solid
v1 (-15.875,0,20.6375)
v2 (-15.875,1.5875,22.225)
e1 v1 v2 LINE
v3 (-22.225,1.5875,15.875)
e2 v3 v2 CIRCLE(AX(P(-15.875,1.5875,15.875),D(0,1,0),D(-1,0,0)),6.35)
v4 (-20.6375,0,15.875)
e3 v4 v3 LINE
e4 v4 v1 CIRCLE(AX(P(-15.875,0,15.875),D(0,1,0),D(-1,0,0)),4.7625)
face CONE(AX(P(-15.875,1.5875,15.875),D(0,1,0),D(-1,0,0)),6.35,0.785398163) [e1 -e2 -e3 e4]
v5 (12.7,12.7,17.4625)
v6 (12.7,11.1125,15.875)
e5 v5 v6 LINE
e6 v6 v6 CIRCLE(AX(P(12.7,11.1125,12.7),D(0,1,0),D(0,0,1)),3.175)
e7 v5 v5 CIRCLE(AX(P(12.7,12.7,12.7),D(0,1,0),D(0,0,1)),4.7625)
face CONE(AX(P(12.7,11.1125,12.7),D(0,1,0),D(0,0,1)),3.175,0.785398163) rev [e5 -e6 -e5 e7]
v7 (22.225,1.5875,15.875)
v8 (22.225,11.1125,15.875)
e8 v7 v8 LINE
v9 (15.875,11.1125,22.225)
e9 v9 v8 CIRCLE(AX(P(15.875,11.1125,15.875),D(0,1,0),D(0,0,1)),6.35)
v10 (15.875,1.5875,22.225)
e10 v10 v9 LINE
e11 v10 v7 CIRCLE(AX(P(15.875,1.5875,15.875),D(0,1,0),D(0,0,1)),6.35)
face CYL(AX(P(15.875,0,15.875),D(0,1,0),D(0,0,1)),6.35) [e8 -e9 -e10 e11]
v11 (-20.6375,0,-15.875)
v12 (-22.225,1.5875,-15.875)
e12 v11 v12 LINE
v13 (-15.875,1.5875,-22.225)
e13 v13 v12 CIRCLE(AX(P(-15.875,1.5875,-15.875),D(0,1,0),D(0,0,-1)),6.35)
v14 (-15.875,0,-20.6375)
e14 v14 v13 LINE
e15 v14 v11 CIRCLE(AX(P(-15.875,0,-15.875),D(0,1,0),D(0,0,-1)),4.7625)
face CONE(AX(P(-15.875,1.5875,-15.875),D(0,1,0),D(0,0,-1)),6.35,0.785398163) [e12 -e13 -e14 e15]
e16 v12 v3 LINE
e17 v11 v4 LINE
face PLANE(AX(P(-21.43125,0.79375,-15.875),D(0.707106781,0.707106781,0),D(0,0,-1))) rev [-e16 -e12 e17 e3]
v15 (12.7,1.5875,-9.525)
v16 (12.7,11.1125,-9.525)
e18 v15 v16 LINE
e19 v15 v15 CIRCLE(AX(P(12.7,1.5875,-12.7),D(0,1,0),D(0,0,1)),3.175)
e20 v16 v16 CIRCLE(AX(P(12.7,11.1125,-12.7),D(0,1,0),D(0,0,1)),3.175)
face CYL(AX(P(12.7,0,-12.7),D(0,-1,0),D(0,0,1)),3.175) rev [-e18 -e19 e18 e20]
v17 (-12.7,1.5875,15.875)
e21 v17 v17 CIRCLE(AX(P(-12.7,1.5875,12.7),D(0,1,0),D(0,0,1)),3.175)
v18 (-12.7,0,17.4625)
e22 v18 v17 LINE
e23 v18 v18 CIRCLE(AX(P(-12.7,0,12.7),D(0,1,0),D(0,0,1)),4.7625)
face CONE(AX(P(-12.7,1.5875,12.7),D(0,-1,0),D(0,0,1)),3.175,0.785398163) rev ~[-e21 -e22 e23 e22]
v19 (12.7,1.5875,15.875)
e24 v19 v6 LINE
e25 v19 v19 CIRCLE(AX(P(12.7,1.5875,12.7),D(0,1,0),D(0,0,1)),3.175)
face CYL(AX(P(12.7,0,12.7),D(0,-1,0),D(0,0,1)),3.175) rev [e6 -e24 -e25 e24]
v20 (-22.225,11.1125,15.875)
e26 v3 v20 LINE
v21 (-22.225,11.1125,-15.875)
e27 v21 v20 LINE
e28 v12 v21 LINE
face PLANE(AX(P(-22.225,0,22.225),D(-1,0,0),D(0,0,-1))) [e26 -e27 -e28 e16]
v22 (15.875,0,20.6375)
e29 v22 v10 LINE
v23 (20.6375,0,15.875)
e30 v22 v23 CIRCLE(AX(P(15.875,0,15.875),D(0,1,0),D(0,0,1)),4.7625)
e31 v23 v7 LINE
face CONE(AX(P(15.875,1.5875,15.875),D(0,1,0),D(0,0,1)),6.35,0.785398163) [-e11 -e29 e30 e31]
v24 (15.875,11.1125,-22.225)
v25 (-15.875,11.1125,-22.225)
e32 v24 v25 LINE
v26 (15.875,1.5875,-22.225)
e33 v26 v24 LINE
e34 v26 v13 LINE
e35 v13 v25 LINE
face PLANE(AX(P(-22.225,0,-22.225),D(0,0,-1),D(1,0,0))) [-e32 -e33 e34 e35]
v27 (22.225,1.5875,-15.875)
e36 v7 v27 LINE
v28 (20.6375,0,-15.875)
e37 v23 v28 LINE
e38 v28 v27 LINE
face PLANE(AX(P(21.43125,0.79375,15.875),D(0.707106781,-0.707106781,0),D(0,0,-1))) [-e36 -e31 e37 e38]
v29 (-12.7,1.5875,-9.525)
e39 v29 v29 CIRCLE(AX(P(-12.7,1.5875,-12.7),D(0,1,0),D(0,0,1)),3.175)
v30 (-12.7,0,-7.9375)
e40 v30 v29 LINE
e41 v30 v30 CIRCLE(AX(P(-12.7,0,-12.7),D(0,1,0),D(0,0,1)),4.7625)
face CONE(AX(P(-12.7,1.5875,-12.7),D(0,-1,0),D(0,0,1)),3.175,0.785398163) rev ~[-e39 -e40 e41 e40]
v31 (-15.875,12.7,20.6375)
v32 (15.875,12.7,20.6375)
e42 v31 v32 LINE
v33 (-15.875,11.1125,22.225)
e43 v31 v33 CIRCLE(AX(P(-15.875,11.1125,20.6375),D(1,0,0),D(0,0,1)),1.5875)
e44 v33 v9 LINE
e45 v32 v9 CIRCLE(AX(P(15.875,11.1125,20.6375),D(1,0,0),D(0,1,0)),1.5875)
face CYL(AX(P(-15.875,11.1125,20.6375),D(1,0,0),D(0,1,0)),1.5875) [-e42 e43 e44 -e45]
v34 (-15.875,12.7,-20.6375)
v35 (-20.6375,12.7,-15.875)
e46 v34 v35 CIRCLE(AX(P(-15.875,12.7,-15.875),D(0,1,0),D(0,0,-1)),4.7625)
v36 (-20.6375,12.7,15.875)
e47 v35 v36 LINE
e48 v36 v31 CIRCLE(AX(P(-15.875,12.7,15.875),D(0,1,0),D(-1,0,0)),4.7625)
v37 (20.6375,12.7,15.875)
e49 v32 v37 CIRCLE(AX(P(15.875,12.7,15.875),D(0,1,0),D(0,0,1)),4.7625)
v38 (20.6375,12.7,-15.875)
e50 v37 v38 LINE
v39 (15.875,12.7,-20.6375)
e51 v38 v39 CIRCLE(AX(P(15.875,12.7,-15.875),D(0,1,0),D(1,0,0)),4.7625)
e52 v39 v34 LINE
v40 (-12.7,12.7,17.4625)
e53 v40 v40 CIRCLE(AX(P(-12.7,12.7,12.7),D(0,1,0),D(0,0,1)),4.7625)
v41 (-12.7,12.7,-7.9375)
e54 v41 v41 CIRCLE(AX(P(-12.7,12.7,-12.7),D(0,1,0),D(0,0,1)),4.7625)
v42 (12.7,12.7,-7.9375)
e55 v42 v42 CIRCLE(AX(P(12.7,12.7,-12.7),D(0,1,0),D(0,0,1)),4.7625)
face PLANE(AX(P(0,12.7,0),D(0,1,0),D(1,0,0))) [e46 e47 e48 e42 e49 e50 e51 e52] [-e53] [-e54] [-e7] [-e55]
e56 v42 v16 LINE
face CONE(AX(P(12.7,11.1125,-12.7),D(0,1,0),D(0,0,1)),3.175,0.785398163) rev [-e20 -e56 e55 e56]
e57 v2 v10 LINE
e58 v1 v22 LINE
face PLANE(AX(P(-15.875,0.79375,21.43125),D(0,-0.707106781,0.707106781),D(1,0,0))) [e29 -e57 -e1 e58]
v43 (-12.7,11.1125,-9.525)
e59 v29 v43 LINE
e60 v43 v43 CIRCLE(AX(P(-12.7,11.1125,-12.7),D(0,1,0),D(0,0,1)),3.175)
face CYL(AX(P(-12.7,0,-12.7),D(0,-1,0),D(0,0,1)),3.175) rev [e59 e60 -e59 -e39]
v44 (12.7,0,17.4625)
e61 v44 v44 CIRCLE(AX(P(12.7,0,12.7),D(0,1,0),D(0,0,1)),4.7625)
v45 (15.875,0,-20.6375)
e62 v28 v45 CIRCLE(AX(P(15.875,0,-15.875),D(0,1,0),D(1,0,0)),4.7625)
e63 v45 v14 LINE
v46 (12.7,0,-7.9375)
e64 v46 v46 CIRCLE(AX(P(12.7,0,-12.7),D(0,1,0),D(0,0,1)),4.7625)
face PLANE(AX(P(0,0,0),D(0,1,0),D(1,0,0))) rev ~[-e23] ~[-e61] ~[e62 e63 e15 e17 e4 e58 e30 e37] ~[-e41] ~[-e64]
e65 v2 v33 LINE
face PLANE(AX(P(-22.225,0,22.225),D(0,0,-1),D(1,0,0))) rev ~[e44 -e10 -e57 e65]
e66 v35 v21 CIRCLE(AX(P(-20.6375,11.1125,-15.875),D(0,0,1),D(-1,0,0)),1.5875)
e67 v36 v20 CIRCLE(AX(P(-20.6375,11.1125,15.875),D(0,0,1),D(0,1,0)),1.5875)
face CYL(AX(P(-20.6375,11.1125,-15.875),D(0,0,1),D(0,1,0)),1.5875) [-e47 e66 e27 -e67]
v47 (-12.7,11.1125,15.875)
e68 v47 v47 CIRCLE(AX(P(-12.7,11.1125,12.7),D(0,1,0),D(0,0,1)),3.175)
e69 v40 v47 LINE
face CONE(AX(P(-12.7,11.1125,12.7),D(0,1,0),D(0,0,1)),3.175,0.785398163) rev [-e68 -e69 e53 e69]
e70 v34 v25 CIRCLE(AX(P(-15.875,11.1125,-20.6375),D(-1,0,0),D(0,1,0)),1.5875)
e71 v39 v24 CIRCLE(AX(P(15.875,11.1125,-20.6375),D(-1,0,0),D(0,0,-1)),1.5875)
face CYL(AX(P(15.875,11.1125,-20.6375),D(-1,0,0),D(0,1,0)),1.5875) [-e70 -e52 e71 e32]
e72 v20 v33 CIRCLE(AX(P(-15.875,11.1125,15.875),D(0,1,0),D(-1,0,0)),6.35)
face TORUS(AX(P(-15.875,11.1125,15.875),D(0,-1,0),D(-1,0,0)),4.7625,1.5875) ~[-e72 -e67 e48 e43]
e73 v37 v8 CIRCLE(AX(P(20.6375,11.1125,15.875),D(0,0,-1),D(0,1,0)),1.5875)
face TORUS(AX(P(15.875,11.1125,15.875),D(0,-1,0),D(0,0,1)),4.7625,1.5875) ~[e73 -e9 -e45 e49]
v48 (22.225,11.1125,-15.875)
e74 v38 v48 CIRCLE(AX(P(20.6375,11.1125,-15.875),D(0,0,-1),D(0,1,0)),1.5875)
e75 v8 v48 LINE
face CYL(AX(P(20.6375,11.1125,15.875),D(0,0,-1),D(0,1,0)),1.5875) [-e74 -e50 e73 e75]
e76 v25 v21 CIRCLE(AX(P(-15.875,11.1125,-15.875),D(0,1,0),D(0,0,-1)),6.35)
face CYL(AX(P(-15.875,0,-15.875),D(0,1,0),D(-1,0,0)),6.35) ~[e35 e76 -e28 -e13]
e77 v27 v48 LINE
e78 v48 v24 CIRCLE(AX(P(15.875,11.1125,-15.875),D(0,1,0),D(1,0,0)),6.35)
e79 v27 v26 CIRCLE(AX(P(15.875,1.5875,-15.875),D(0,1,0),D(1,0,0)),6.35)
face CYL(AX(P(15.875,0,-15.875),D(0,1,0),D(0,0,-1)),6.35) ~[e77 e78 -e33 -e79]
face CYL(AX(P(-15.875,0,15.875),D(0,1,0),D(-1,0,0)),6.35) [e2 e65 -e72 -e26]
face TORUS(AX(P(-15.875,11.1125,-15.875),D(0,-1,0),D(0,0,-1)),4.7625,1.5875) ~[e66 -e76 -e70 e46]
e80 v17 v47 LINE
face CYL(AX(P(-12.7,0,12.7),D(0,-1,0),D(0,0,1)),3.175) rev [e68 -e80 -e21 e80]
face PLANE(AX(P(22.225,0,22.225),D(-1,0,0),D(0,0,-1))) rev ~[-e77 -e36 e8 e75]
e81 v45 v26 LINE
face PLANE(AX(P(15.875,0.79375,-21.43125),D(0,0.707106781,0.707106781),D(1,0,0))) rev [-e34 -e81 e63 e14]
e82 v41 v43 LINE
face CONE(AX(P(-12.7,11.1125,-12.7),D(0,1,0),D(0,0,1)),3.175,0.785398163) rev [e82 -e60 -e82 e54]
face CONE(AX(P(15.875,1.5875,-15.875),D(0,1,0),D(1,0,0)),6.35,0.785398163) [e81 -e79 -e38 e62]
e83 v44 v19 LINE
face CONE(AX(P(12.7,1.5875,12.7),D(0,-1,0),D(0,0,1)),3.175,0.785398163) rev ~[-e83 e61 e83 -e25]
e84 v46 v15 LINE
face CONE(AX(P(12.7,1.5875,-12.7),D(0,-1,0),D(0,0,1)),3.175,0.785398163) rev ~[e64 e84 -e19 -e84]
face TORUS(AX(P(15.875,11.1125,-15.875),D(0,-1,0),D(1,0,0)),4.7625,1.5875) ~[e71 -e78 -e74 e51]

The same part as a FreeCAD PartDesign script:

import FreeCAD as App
import Part
import Sketcher
from FreeCAD import Vector
Q = App.Units.Quantity


def edges_at(feature, points):
    """Names of the edges that pass closest to the given points."""
    edges = feature.Shape.Edges
    near = lambda p: min(range(len(edges)), key=lambda i: edges[i].distToShape(Part.Vertex(*p))[0])
    return sorted({f"Edge{near(p) + 1}" for p in points})

doc = App.newDocument("Part")
body = doc.addObject("PartDesign::Body", "Body")

sketch1 = doc.addObject("Sketcher::SketchObject", "Sketch")
body.addObject(sketch1)
sketch1.AttachmentSupport = (doc.XZ_Plane, [""])
sketch1.MapMode = "FlatFace"
sketch1.addGeometry(Part.LineSegment(Vector(-22.225, -22.225, 0), Vector(-22.225, 22.225, 0)), False)
sketch1.addGeometry(Part.LineSegment(Vector(-22.225, 22.225, 0), Vector(22.225, 22.225, 0)), False)
sketch1.addGeometry(Part.LineSegment(Vector(22.225, 22.225, 0), Vector(22.225, -22.225, 0)), False)
sketch1.addGeometry(Part.LineSegment(Vector(22.225, -22.225, 0), Vector(-22.225, -22.225, 0)), False)
sketch1.addGeometry(Part.Circle(Vector(-12.7, 12.7, 0), Vector(0, 0, 1), 3.175), False)
sketch1.addGeometry(Part.Circle(Vector(12.7, 12.7, 0), Vector(0, 0, 1), 3.175), False)
sketch1.addGeometry(Part.Circle(Vector(-12.7, -12.7, 0), Vector(0, 0, 1), 3.175), False)
sketch1.addGeometry(Part.Circle(Vector(12.7, -12.7, 0), Vector(0, 0, 1), 3.175), False)
sketch1.addConstraint(Sketcher.Constraint("Coincident", 0, 2, 1, 1))
sketch1.addConstraint(Sketcher.Constraint("Coincident", 1, 2, 2, 1))
sketch1.addConstraint(Sketcher.Constraint("Coincident", 2, 2, 3, 1))
sketch1.addConstraint(Sketcher.Constraint("Coincident", 3, 2, 0, 1))
sketch1.addConstraint(Sketcher.Constraint("Vertical", 0))
sketch1.addConstraint(Sketcher.Constraint("Horizontal", 1))
sketch1.addConstraint(Sketcher.Constraint("Vertical", 2))
sketch1.addConstraint(Sketcher.Constraint("Horizontal", 3))
sketch1.addConstraint(Sketcher.Constraint("Equal", 4, 5))
sketch1.addConstraint(Sketcher.Constraint("Equal", 5, 6))
sketch1.addConstraint(Sketcher.Constraint("Equal", 6, 7))
sketch1.addConstraint(Sketcher.Constraint("Symmetric", 5, 3, 6, 3, -1, 1))
sketch1.addConstraint(Sketcher.Constraint("Symmetric", 4, 3, 7, 3, -1, 1))
sketch1.addConstraint(Sketcher.Constraint("Symmetric", 0, 2, 2, 2, -1, 1))
sketch1.addConstraint(Sketcher.Constraint("Symmetric", 4, 3, 5, 3, -2))
sketch1.addConstraint(Sketcher.Constraint("Equal", 3, 0))
sketch1.addConstraint(Sketcher.Constraint("Diameter", 4, Q("0.25 in")))
sketch1.addConstraint(Sketcher.Constraint("DistanceX", 4, 3, 5, 3, Q("1 in")))
sketch1.addConstraint(Sketcher.Constraint("DistanceY", 6, 3, 4, 3, Q("1 in")))
sketch1.addConstraint(Sketcher.Constraint("DistanceX", 1, 1, 1, 2, Q("1.75 in")))
pad1 = doc.addObject("PartDesign::Pad", "Pad")
body.addObject(pad1)
pad1.Profile = sketch1
pad1.Length = Q("0.5 in")
pad1.Reversed = True
doc.recompute()

fillet = doc.addObject("PartDesign::Fillet", "Fillet")
body.addObject(fillet)
fillet.Base = (pad1, edges_at(pad1, [
    (22.225, 6.35, 22.225),
    (-22.225, 6.35, 22.225),
    (-22.225, 6.35, -22.225),
    (22.225, 6.35, -22.225),
]))
fillet.Radius = Q("0.25 in")
doc.recompute()

fillet2 = doc.addObject("PartDesign::Fillet", "Fillet001")
body.addObject(fillet2)
fillet2.Base = (fillet, edges_at(fillet, [
    (22.225, 12.7, 0),
    (0, 12.7, 22.225),
    (0, 12.7, -22.225),
    (-22.225, 12.7, 0),
    (-20.365, 12.7, 20.365),
    (20.365, 12.7, -20.365),
    (-20.365, 12.7, -20.365),
    (20.365, 12.7, 20.365),
]))
fillet2.Radius = Q("0.0625 in")
doc.recompute()

chamfer = doc.addObject("PartDesign::Chamfer", "Chamfer")
body.addObject(chamfer)
chamfer.Base = (fillet2, edges_at(fillet2, [
    (-12.7, 0, 9.525),
    (-12.7, 12.7, 9.525),
    (12.7, 0, 9.525),
    (12.7, 12.7, 9.525),
    (12.7, 0, -15.875),
    (12.7, 12.7, -15.875),
    (-12.7, 0, -15.875),
    (-12.7, 12.7, -15.875),
    (22.225, 0, 0),
    (0, 0, 22.225),
    (-22.225, 0, 0),
    (0, 0, -22.225),
    (-20.365, 0, 20.365),
    (20.365, 0, -20.365),
    (-20.365, 0, -20.365),
    (20.365, 0, 20.365),
]))
chamfer.Size = Q("0.0625 in")

doc.recompute()
